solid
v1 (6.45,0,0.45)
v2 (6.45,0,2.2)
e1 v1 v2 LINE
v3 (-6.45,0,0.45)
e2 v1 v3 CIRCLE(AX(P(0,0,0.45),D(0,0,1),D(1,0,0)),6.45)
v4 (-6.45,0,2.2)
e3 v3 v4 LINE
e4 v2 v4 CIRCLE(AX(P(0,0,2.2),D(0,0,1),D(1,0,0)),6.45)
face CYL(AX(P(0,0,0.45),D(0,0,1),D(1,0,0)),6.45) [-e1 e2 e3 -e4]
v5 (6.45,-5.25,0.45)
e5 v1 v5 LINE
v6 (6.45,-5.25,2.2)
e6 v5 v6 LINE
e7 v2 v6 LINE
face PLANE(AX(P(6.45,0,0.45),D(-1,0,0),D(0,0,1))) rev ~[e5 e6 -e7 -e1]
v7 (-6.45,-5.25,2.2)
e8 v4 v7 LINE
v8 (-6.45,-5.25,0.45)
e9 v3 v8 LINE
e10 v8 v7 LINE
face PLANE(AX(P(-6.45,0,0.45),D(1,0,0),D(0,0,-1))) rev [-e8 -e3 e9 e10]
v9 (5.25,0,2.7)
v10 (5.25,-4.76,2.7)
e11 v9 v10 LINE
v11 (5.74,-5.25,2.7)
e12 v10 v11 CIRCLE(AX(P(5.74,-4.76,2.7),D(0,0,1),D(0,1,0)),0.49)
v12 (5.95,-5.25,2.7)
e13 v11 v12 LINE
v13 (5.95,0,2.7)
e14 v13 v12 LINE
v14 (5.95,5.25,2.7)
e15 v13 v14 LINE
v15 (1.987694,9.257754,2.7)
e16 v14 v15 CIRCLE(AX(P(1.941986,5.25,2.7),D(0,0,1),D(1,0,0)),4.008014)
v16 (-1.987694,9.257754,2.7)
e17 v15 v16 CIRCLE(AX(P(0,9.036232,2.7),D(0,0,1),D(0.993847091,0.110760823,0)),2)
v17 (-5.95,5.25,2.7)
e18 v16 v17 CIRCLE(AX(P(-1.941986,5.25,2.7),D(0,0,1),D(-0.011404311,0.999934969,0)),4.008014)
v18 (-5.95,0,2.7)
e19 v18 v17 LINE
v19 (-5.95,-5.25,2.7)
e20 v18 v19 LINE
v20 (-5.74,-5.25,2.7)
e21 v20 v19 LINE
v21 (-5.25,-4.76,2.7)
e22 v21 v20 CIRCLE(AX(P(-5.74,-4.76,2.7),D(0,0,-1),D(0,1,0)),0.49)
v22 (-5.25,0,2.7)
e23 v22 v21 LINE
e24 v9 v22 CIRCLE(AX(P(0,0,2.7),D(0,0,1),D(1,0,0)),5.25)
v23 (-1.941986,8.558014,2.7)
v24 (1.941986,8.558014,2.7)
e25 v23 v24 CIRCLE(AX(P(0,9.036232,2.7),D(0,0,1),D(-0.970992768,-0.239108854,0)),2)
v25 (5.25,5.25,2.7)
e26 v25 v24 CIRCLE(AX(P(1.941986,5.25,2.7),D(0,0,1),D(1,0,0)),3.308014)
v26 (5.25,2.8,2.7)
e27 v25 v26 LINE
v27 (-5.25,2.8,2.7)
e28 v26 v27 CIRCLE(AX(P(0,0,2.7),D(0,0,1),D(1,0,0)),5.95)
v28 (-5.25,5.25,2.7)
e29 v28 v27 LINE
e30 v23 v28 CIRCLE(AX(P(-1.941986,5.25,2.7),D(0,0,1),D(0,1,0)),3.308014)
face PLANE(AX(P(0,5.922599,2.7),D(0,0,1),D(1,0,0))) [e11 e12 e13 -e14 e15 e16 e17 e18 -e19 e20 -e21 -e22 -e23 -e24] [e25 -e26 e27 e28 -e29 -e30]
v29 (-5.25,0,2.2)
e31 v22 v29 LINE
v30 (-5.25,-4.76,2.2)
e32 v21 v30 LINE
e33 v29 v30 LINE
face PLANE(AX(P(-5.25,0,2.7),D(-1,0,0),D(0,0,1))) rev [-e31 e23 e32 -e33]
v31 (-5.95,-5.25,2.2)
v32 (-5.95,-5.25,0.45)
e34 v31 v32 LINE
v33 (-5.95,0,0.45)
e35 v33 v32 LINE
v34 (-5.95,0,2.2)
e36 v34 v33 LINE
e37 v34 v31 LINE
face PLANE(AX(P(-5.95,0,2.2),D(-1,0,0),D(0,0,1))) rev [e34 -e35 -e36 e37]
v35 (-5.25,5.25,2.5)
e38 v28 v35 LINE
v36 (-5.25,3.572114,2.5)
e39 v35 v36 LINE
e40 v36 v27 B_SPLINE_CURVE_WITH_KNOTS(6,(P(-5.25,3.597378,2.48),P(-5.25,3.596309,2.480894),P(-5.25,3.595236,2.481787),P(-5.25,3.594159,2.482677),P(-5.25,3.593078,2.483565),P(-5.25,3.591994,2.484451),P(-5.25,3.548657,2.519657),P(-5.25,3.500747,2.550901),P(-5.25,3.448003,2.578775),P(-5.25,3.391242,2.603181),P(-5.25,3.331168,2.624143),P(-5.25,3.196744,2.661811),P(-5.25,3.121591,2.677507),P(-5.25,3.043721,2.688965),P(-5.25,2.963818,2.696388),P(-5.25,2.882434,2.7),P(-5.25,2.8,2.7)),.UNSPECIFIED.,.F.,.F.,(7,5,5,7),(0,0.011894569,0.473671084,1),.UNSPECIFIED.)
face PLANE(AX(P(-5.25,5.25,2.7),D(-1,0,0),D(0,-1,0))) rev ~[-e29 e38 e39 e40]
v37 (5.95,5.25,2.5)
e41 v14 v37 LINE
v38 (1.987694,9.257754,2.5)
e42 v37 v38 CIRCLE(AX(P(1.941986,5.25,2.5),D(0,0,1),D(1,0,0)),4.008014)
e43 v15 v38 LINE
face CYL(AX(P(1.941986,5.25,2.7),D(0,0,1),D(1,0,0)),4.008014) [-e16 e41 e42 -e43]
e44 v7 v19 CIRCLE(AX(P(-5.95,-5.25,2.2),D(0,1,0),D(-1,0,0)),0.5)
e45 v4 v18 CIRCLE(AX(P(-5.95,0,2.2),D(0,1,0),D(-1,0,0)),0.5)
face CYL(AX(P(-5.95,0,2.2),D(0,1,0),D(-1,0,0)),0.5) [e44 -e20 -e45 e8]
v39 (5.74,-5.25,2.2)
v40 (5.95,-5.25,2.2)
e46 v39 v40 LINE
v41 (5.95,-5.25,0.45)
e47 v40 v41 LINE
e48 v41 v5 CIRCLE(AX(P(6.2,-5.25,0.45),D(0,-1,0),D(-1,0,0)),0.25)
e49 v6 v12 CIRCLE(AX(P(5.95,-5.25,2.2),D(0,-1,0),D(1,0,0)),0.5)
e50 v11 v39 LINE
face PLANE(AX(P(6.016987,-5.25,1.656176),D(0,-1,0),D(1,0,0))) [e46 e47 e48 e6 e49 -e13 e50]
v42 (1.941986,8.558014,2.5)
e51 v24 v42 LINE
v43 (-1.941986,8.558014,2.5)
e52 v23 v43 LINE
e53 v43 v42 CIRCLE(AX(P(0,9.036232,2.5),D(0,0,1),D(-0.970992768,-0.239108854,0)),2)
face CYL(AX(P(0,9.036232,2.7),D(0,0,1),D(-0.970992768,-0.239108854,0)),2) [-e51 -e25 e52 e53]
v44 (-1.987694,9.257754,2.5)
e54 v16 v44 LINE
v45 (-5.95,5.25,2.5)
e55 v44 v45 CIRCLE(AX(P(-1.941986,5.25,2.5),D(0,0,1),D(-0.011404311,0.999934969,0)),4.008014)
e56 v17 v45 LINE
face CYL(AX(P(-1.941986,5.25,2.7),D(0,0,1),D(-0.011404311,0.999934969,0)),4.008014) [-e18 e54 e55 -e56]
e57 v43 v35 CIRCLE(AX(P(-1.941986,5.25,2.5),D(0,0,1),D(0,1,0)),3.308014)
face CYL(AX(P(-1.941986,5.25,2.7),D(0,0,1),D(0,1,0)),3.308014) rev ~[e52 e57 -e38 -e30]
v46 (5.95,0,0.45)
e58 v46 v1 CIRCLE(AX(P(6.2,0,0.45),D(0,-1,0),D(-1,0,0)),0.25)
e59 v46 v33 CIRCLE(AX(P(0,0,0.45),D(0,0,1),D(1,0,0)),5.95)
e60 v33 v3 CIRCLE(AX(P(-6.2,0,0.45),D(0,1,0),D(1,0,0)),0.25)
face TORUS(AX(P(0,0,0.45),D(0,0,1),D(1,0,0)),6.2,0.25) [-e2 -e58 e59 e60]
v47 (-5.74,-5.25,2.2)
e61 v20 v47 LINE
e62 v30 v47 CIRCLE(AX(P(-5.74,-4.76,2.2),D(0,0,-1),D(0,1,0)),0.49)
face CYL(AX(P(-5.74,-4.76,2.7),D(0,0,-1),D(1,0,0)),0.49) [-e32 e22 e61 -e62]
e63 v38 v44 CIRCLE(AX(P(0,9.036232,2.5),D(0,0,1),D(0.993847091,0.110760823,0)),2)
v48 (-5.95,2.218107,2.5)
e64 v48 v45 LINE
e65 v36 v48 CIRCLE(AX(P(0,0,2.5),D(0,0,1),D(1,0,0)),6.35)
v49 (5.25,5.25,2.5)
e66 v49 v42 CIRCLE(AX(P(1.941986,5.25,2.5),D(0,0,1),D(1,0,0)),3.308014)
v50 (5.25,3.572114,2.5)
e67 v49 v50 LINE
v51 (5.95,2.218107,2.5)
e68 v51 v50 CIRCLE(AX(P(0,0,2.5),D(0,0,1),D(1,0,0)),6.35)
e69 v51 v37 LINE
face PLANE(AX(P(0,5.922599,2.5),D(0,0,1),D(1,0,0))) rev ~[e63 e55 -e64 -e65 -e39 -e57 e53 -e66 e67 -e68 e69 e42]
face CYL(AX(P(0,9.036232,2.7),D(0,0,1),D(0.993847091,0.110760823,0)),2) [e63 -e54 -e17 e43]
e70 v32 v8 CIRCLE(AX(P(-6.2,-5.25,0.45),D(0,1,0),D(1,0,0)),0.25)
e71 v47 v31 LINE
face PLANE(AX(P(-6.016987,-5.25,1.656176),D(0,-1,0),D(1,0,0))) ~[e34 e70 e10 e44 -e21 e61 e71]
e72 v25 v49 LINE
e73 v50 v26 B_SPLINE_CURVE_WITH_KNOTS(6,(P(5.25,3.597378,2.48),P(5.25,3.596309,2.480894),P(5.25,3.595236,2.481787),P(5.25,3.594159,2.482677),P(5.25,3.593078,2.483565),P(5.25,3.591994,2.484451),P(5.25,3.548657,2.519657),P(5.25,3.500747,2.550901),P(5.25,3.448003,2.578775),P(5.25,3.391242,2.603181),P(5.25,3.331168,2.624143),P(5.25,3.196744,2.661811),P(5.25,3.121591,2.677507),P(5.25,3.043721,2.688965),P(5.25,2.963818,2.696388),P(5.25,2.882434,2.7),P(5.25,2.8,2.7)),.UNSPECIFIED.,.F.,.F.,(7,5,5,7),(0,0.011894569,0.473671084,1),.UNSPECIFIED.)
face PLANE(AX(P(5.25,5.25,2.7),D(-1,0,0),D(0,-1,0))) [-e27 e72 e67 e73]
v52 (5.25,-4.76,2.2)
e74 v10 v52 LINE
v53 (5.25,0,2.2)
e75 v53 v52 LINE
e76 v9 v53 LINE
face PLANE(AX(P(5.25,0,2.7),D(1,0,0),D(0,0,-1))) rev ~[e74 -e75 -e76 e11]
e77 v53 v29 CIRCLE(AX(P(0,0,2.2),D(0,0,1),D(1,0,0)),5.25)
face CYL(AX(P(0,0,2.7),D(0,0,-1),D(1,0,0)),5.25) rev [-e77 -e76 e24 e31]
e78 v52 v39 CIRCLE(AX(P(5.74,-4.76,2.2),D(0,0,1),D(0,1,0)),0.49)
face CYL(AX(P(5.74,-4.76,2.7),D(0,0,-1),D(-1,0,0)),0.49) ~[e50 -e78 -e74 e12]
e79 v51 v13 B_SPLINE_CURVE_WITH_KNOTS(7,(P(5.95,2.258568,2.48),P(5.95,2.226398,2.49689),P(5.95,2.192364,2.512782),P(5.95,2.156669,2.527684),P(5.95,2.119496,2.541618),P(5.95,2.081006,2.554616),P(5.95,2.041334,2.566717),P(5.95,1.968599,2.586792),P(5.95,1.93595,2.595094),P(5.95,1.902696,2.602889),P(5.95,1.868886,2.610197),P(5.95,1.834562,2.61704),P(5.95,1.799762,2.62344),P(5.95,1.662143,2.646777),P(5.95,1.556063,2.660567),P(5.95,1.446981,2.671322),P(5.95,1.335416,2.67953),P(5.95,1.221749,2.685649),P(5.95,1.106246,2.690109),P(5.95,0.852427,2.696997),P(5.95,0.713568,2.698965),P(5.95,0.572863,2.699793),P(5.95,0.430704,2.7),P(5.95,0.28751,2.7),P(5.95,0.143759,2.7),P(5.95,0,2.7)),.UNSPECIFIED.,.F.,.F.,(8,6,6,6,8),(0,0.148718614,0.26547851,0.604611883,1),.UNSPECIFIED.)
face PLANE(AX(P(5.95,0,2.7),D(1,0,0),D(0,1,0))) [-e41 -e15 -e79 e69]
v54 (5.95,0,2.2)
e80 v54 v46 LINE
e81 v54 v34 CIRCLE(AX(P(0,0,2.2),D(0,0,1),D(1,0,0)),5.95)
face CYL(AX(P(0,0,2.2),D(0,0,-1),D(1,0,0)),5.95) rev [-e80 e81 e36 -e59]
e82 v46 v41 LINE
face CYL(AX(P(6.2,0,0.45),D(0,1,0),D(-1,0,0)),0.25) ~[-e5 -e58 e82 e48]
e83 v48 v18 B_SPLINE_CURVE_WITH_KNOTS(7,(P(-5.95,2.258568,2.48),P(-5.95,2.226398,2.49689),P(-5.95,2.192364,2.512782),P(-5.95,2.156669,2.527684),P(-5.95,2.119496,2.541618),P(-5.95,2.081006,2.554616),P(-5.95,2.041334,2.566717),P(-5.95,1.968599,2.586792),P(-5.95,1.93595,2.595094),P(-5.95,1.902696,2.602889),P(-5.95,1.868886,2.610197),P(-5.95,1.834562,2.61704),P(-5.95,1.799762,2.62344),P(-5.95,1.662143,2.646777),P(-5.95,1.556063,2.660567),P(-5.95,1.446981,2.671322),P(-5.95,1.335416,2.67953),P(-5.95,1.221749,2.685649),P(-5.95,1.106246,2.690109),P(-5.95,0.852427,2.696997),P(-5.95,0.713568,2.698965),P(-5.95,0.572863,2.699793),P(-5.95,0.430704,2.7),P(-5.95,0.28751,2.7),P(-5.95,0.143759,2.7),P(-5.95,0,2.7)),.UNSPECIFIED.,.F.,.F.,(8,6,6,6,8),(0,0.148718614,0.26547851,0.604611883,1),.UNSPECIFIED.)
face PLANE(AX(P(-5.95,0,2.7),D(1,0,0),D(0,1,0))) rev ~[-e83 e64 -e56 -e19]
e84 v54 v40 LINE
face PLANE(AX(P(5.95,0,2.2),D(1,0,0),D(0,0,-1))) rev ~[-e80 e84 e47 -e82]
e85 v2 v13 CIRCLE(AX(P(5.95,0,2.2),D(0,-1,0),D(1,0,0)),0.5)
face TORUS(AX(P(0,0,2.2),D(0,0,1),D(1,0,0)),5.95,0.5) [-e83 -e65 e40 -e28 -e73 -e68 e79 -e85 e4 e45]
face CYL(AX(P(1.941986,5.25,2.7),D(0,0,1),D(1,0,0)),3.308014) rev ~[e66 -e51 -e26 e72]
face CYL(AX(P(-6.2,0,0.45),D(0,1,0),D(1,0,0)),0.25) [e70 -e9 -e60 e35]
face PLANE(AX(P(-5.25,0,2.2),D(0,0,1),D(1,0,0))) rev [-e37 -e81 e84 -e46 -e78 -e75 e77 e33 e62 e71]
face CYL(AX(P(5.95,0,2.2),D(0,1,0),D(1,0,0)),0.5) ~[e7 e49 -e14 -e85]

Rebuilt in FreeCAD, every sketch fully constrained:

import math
import FreeCAD as App
import Part
import Sketcher

V = App.Vector
Q = App.Units.Quantity


def edges_at(feature, points):
    """Names of the edges that pass closest to the given points."""
    edges = feature.Shape.Edges
    near = lambda p: min(range(len(edges)), key=lambda i: edges[i].distToShape(Part.Vertex(*p))[0])
    return sorted({f"Edge{near(p) + 1}" for p in points})

doc = App.newDocument("Part")
params = doc.addObject("Spreadsheet::Sheet", "Params")
for row, (alias, value) in enumerate([
    ("sketch1_radius", "0.5 mm"),
    ("sketch1_width", "0.7 mm"),
    ("sketch1_height", "1.75 mm"),
    ("revolution_angle", "180 deg"),
    ("sketch2_radius", "0.5 mm"),
    ("sketch2_width", "0.7 mm"),
    ("sketch2_height", "1.75 mm"),
    ("pad1_length", "5.25 mm"),
    ("fillet_radius", "0.49 mm"),
    ("sketch3_radius", "2 mm"),
    ("sketch3_radius2", "5.95 mm"),
    ("sketch3_height", "2.45 mm"),
    ("sketch3_height2", "5.25 mm"),
    ("pad2_length", "0.2 mm"),
], start=1):
    params.set(f"A{row}", alias)
    params.set(f"B{row}", "=" + value)
    params.setAlias(f"B{row}", alias)

body = doc.addObject("PartDesign::Body", "Body")

# Sketch on XZ plane
sketch1 = body.newObject("Sketcher::SketchObject", "Sketch")
sketch1.AttachmentSupport = (doc.getObject("XZ_Plane"), [""])
sketch1.MapMode = "FlatFace"
sketch1.addGeometry([
    Part.LineSegment(V(5.25, 2.7, 0), V(5.25, 2.2, 0)),  # 0
    Part.LineSegment(V(5.25, 2.2, 0), V(5.95, 2.2, 0)),  # 1
    Part.LineSegment(V(5.95, 2.2, 0), V(5.95, 0.45, 0)),  # 2
    Part.ArcOfCircle(Part.Circle(V(6.2, 0.45, 0), V(0, 0, 1), 0.25), math.radians(180), math.radians(360)),  # 3
    Part.LineSegment(V(6.45, 0.45, 0), V(6.45, 2.2, 0)),  # 4
    Part.ArcOfCircle(Part.Circle(V(5.95, 2.2, 0), V(0, 0, 1), 0.5), math.radians(0), math.radians(90)),  # 5
    Part.LineSegment(V(5.95, 2.7, 0), V(5.25, 2.7, 0)),  # 6
], False)
sketch1.addConstraint([
    Sketcher.Constraint("Coincident", 0, 2, 1, 1),
    Sketcher.Constraint("Coincident", 1, 2, 2, 1),
    Sketcher.Constraint("Tangent", 2, 2, 3, 1),
    Sketcher.Constraint("Tangent", 3, 2, 4, 1),
    Sketcher.Constraint("Tangent", 4, 2, 5, 1),
    Sketcher.Constraint("Tangent", 5, 2, 6, 1),
    Sketcher.Constraint("Coincident", 6, 2, 0, 1),
    Sketcher.Constraint("Vertical", 0),
    Sketcher.Constraint("Horizontal", 1),
    Sketcher.Constraint("Vertical", 2),
    Sketcher.Constraint("Vertical", 4),
    Sketcher.Constraint("Horizontal", 6),
    Sketcher.Constraint("Coincident", 1, 2, 5, 3),
    Sketcher.Constraint("Radius", 5, Q("0.5 mm")),
    Sketcher.Constraint("DistanceX", 1, 1, 1, 2, Q("0.7 mm")),
    Sketcher.Constraint("DistanceY", 2, 2, 2, 1, Q("1.75 mm")),
    Sketcher.Constraint("DistanceX", -1, 1, 3, 3, Q("6.2 mm")),
    Sketcher.Constraint("DistanceY", -1, 1, 5, 3, Q("2.2 mm")),
])
sketch1.setExpression("Constraints[13]", "Params.sketch1_radius")
sketch1.setExpression("Constraints[14]", "Params.sketch1_width")
sketch1.setExpression("Constraints[15]", "Params.sketch1_height")
revolution = body.newObject("PartDesign::Revolution", "Revolution")
revolution.Profile = sketch1
revolution.ReferenceAxis = (sketch1, ["V_Axis"])
revolution.setExpression("Angle", "Params.revolution_angle")

# Sketch on XZ plane
sketch2 = body.newObject("Sketcher::SketchObject", "Sketch001")
sketch2.AttachmentSupport = (doc.getObject("XZ_Plane"), [""])
sketch2.MapMode = "FlatFace"
sketch2.addGeometry([
    Part.LineSegment(V(5.25, 2.7, 0), V(5.25, 2.2, 0)),  # 0
    Part.LineSegment(V(5.25, 2.2, 0), V(5.95, 2.2, 0)),  # 1
    Part.LineSegment(V(5.95, 2.2, 0), V(5.95, 0.45, 0)),  # 2
    Part.ArcOfCircle(Part.Circle(V(6.2, 0.45, 0), V(0, 0, 1), 0.25), math.radians(180), math.radians(360)),  # 3
    Part.LineSegment(V(6.45, 0.45, 0), V(6.45, 2.2, 0)),  # 4
    Part.ArcOfCircle(Part.Circle(V(5.95, 2.2, 0), V(0, 0, 1), 0.5), math.radians(0), math.radians(90)),  # 5
    Part.LineSegment(V(5.95, 2.7, 0), V(5.25, 2.7, 0)),  # 6
], False)
sketch2.addConstraint([
    Sketcher.Constraint("Coincident", 0, 2, 1, 1),
    Sketcher.Constraint("Coincident", 1, 2, 2, 1),
    Sketcher.Constraint("Tangent", 2, 2, 3, 1),
    Sketcher.Constraint("Tangent", 3, 2, 4, 1),
    Sketcher.Constraint("Tangent", 4, 2, 5, 1),
    Sketcher.Constraint("Tangent", 5, 2, 6, 1),
    Sketcher.Constraint("Coincident", 6, 2, 0, 1),
    Sketcher.Constraint("Vertical", 0),
    Sketcher.Constraint("Horizontal", 1),
    Sketcher.Constraint("Vertical", 2),
    Sketcher.Constraint("Vertical", 4),
    Sketcher.Constraint("Horizontal", 6),
    Sketcher.Constraint("Coincident", 1, 2, 5, 3),
    Sketcher.Constraint("Radius", 5, Q("0.5 mm")),
    Sketcher.Constraint("DistanceX", 1, 1, 1, 2, Q("0.7 mm")),
    Sketcher.Constraint("DistanceY", 2, 2, 2, 1, Q("1.75 mm")),
    Sketcher.Constraint("DistanceX", -1, 1, 3, 3, Q("6.2 mm")),
    Sketcher.Constraint("DistanceY", -1, 1, 5, 3, Q("2.2 mm")),
])
sketch2.setExpression("Constraints[13]", "Params.sketch2_radius")
sketch2.setExpression("Constraints[14]", "Params.sketch2_width")
sketch2.setExpression("Constraints[15]", "Params.sketch2_height")
pad1 = body.newObject("PartDesign::Pad", "Pad")
pad1.Profile = sketch2
pad1.setExpression("Length", "Params.pad1_length")
doc.recompute()

mirrored = body.newObject("PartDesign::Mirrored", "Mirrored")
mirrored.Originals = [pad1]
mirrored.MirrorPlane = (doc.getObject("YZ_Plane"), [""])
body.Tip = mirrored
doc.recompute()

fillet = body.newObject("PartDesign::Fillet", "Fillet")
fillet.Base = (mirrored, edges_at(mirrored, [(-5.25, -5.25, 2.45), (5.25, -5.25, 2.45)]))
fillet.setExpression("Radius", "Params.fillet_radius")

# Sketch on XY plane
sketch3 = body.newObject("Sketcher::SketchObject", "Sketch002")
sketch3.AttachmentSupport = (doc.getObject("XY_Plane"), [""])
sketch3.MapMode = "FlatFace"
sketch3.AttachmentOffset = App.Placement(V(0, 0, 2.7), App.Rotation())
sketch3.addGeometry([
    Part.ArcOfCircle(Part.Circle(V(0, 9, 0), V(0, 0, 1), 2), math.radians(-166), math.radians(-14)),  # 0
    Part.ArcOfCircle(Part.Circle(V(1.9, 5.2, 0), V(0, 0, 1), 3.3), math.radians(0), math.radians(90)),  # 1
    Part.LineSegment(V(5.2, 5.2, 0), V(5.2, 2.8, 0)),  # 2
    Part.ArcOfCircle(Part.Circle(V(0, 0, 0), V(0, 0, 1), 5.9), math.radians(0), math.radians(28)),  # 3
    Part.LineSegment(V(6, 0, 0), V(6, 5.2, 0)),  # 4
    Part.ArcOfCircle(Part.Circle(V(1.9, 5.2, 0), V(0, 0, 1), 4), math.radians(0), math.radians(89)),  # 5
    Part.ArcOfCircle(Part.Circle(V(0, 9, 0), V(0, 0, 1), 2), math.radians(6), math.radians(174)),  # 6
    Part.ArcOfCircle(Part.Circle(V(-1.9, 5.2, 0), V(0, 0, 1), 4), math.radians(91), math.radians(180)),  # 7
    Part.LineSegment(V(-6, 5.2, 0), V(-6, 0, 0)),  # 8
    Part.ArcOfCircle(Part.Circle(V(0, 0, 0), V(0, 0, 1), 5.9), math.radians(152), math.radians(180)),  # 9
    Part.LineSegment(V(-5.2, 2.8, 0), V(-5.2, 5.2, 0)),  # 10
    Part.ArcOfCircle(Part.Circle(V(-1.9, 5.2, 0), V(0, 0, 1), 3.3), math.radians(90), math.radians(180)),  # 11
], False)
sketch3.addConstraint([
    Sketcher.Constraint("Coincident", 0, 2, 1, 2),
    Sketcher.Constraint("Tangent", 1, 1, 2, 1),
    Sketcher.Constraint("Coincident", 2, 2, 3, 2),
    Sketcher.Constraint("Tangent", 3, 1, 4, 1),
    Sketcher.Constraint("Tangent", 4, 2, 5, 1),
    Sketcher.Constraint("Coincident", 5, 2, 6, 1),
    Sketcher.Constraint("Coincident", 6, 2, 7, 1),
    Sketcher.Constraint("Tangent", 7, 2, 8, 1),
    Sketcher.Constraint("Tangent", 8, 2, 9, 2),
    Sketcher.Constraint("Coincident", 9, 1, 10, 1),
    Sketcher.Constraint("Tangent", 10, 2, 11, 2),
    Sketcher.Constraint("Coincident", 11, 1, 0, 1),
    Sketcher.Constraint("Vertical", 2),
    Sketcher.Constraint("Vertical", 4),
    Sketcher.Constraint("Vertical", 8),
    Sketcher.Constraint("Vertical", 10),
    Sketcher.Constraint("Coincident", 3, 3, -1, 1),
    Sketcher.Constraint("Coincident", 9, 3, -1, 1),
    Sketcher.Constraint("Coincident", 5, 3, 1, 3),
    Sketcher.Constraint("Coincident", 6, 3, 0, 3),
    Sketcher.Constraint("Coincident", 11, 3, 7, 3),
    Sketcher.Constraint("Equal", 0, 6),
    Sketcher.Constraint("Equal", 5, 7),
    Sketcher.Constraint("Equal", 3, 9),
    Sketcher.Constraint("Equal", 1, 11),
    Sketcher.Constraint("Symmetric", 5, 2, 6, 2, -2),
    Sketcher.Constraint("Vertical", 5, 3, 0, 2),
    Sketcher.Constraint("Radius", 0, Q("2 mm")),
    Sketcher.Constraint("Radius", 3, Q("5.95 mm")),
    Sketcher.Constraint("DistanceY", 2, 2, 2, 1, Q("2.45 mm")),
    Sketcher.Constraint("DistanceY", 4, 1, 4, 2, Q("5.25 mm")),
    Sketcher.Constraint("Radius", 1, Q("3.308014 mm")),
])
sketch3.setExpression("Constraints[27]", "Params.sketch3_radius")
sketch3.setExpression("Constraints[28]", "Params.sketch3_radius2")
sketch3.setExpression("Constraints[29]", "Params.sketch3_height")
sketch3.setExpression("Constraints[30]", "Params.sketch3_height2")
pad2 = body.newObject("PartDesign::Pad", "Pad001")
pad2.Profile = sketch3
pad2.setExpression("Length", "Params.pad2_length")
pad2.Reversed = True

doc.recompute()
